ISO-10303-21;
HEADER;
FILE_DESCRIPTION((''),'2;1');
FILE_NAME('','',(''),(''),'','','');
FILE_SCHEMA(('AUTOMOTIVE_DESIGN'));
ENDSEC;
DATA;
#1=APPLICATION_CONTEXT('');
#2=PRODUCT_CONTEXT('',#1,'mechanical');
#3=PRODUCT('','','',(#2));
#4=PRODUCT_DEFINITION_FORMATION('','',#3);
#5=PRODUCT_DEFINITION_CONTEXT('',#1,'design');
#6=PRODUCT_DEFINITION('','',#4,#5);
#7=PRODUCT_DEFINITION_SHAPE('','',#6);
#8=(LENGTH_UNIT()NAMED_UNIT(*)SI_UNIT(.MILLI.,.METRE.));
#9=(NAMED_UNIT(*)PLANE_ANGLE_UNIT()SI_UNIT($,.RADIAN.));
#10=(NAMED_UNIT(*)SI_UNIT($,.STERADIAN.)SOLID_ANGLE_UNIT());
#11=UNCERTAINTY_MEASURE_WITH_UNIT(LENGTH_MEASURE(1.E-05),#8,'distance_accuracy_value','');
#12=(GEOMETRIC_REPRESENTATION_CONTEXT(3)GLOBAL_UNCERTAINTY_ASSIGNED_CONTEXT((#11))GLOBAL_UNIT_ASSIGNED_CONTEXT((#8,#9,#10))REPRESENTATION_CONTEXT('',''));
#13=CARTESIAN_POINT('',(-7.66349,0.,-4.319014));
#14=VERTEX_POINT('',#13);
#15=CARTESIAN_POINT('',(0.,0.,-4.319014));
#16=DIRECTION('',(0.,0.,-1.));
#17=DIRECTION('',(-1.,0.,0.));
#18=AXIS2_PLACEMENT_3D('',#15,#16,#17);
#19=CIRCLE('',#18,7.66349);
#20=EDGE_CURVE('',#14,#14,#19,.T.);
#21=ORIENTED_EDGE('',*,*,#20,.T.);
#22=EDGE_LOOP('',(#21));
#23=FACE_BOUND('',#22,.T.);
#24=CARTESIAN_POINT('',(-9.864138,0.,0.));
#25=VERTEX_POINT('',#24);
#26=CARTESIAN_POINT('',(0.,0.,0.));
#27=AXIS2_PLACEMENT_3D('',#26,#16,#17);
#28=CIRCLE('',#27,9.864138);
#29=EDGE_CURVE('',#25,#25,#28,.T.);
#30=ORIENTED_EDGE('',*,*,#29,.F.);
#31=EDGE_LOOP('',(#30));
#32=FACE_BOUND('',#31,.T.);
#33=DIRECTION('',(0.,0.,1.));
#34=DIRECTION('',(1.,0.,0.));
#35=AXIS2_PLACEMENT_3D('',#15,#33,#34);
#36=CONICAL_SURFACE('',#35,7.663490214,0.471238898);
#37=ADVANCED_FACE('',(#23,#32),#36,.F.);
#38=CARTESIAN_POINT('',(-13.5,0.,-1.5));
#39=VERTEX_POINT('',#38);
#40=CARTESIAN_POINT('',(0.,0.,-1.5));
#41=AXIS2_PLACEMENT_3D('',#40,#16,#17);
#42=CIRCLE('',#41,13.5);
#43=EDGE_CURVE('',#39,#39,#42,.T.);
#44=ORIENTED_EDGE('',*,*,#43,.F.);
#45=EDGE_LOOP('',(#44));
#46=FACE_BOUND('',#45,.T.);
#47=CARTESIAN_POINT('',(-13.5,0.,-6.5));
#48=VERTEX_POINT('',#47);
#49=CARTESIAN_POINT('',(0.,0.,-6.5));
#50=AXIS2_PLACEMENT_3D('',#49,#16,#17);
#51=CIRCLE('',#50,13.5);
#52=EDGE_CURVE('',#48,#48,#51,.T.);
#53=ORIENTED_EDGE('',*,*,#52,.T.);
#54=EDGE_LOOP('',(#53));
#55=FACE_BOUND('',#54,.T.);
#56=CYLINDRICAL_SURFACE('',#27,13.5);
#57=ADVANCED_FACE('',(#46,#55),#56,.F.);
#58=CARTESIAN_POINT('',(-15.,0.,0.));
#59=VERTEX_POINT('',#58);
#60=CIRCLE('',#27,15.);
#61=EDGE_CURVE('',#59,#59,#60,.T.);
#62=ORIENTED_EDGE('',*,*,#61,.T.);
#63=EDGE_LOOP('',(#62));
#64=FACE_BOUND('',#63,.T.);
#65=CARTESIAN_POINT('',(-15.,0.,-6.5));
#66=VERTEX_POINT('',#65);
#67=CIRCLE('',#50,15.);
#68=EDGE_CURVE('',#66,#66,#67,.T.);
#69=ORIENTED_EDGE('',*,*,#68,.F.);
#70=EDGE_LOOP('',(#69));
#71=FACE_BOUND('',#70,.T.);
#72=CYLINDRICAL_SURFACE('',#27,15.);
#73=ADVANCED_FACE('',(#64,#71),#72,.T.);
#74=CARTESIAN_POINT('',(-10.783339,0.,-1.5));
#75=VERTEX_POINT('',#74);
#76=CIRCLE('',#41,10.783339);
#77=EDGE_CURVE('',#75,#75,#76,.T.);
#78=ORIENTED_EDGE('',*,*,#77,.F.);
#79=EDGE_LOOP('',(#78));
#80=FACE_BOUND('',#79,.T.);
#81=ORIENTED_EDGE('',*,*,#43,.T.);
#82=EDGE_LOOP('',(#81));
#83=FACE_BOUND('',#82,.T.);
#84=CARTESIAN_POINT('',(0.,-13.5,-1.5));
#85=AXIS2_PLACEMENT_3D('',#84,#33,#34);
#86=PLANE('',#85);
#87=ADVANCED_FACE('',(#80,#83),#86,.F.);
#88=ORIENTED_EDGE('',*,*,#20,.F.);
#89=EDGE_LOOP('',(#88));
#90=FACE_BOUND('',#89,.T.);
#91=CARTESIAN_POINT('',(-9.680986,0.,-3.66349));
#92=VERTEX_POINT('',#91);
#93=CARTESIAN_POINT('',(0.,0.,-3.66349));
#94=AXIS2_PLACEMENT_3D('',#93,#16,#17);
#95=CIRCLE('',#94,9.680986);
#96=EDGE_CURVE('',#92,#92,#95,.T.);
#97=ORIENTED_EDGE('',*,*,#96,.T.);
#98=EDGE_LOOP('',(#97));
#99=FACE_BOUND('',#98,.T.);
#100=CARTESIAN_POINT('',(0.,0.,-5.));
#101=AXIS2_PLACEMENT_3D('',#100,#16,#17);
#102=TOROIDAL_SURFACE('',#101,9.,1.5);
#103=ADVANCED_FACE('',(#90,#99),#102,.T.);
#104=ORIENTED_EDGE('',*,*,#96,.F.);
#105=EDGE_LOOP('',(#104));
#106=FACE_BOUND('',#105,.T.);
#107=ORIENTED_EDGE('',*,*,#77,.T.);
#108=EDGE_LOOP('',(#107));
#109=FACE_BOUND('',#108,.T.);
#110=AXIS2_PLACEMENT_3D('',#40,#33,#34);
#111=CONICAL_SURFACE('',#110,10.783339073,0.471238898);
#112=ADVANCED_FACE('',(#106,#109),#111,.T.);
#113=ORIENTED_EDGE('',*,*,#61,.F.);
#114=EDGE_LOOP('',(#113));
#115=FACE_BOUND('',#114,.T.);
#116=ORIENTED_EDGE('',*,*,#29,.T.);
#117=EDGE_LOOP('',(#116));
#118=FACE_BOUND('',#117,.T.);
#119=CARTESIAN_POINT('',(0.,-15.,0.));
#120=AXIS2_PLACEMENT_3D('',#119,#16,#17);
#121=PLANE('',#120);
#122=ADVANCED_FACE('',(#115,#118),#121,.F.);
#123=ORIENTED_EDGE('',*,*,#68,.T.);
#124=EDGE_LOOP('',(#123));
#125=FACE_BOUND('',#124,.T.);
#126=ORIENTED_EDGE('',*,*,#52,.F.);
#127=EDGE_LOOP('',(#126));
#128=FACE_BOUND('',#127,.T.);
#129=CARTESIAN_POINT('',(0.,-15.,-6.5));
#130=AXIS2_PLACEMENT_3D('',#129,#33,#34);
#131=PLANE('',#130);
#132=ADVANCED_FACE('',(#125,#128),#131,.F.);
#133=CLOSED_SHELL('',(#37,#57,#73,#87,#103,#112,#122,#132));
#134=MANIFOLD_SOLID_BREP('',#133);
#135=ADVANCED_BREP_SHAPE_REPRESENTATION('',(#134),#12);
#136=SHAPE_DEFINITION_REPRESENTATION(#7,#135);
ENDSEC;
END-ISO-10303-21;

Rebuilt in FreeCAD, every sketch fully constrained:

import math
import FreeCAD as App
import Part
import Sketcher
Q = App.Units.Quantity

doc = App.newDocument("Part")
body = doc.addObject("PartDesign::Body", "Body")

# Sketch on YZ plane
sketch1 = body.newObject("Sketcher::SketchObject", "Sketch")
sketch1.AttachmentSupport = (doc.getObject("YZ_Plane"), [""])
sketch1.MapMode = "FlatFace"
sketch1.addGeometry([
    Part.LineSegment(App.Vector(-9.864138, 0, 0), App.Vector(-15, 0, 0)),  # 0
    Part.LineSegment(App.Vector(-15, 0, 0), App.Vector(-15, -6.5, 0)),  # 1
    Part.LineSegment(App.Vector(-15, -6.5, 0), App.Vector(-13.5, -6.5, 0)),  # 2
    Part.LineSegment(App.Vector(-13.5, -6.5, 0), App.Vector(-13.5, -1.5, 0)),  # 3
    Part.LineSegment(App.Vector(-13.5, -1.5, 0), App.Vector(-10.783339, -1.5, 0)),  # 4
    Part.LineSegment(App.Vector(-10.783339, -1.5, 0), App.Vector(-9.680986, -3.66349, 0)),  # 5
    Part.ArcOfCircle(Part.Circle(App.Vector(-9, -5, 0), App.Vector(0, 0, 1), 1.5), math.radians(117), math.radians(387)),  # 6
    Part.LineSegment(App.Vector(-7.66349, -4.319014, 0), App.Vector(-9.864138, 0, 0)),  # 7
], False)
sketch1.addConstraint([
    Sketcher.Constraint("Coincident", 0, 2, 1, 1),
    Sketcher.Constraint("Coincident", 1, 2, 2, 1),
    Sketcher.Constraint("Coincident", 2, 2, 3, 1),
    Sketcher.Constraint("Coincident", 3, 2, 4, 1),
    Sketcher.Constraint("Coincident", 4, 2, 5, 1),
    Sketcher.Constraint("Coincident", 5, 2, 6, 1),
    Sketcher.Constraint("Tangent", 6, 2, 7, 1),
    Sketcher.Constraint("Coincident", 7, 2, 0, 1),
    Sketcher.Constraint("Horizontal", 0),
    Sketcher.Constraint("Vertical", 1),
    Sketcher.Constraint("Horizontal", 2),
    Sketcher.Constraint("Vertical", 3),
    Sketcher.Constraint("Horizontal", 4),
    Sketcher.Constraint("PointOnObject", 0, 2, -1),
    Sketcher.Constraint("Parallel", 5, 7),
    Sketcher.Constraint("Radius", 6, Q("1.5 mm")),
    Sketcher.Constraint("DistanceY", 3, 1, 3, 2, Q("5 mm")),
    Sketcher.Constraint("Angle", 5, Q("-63 deg")),
    Sketcher.Constraint("DistanceX", 2, 1, 2, 2, Q("1.5 mm")),
    Sketcher.Constraint("DistanceY", 1, 2, 1, 1, Q("6.5 mm")),
    Sketcher.Constraint("DistanceX", 6, 3, -1, 1, Q("9 mm")),
    Sketcher.Constraint("DistanceY", 6, 3, -1, 1, Q("5 mm")),
    Sketcher.Constraint("DistanceX", 0, 2, -1, 1, Q("15 mm")),
    Sketcher.Constraint("DistanceX", 4, 1, 4, 2, Q("2.716661 mm")),
])
revolution = body.newObject("PartDesign::Revolution", "Revolution")
revolution.Profile = sketch1
revolution.ReferenceAxis = (sketch1, ["V_Axis"])
revolution.Angle = 360

doc.recompute()
